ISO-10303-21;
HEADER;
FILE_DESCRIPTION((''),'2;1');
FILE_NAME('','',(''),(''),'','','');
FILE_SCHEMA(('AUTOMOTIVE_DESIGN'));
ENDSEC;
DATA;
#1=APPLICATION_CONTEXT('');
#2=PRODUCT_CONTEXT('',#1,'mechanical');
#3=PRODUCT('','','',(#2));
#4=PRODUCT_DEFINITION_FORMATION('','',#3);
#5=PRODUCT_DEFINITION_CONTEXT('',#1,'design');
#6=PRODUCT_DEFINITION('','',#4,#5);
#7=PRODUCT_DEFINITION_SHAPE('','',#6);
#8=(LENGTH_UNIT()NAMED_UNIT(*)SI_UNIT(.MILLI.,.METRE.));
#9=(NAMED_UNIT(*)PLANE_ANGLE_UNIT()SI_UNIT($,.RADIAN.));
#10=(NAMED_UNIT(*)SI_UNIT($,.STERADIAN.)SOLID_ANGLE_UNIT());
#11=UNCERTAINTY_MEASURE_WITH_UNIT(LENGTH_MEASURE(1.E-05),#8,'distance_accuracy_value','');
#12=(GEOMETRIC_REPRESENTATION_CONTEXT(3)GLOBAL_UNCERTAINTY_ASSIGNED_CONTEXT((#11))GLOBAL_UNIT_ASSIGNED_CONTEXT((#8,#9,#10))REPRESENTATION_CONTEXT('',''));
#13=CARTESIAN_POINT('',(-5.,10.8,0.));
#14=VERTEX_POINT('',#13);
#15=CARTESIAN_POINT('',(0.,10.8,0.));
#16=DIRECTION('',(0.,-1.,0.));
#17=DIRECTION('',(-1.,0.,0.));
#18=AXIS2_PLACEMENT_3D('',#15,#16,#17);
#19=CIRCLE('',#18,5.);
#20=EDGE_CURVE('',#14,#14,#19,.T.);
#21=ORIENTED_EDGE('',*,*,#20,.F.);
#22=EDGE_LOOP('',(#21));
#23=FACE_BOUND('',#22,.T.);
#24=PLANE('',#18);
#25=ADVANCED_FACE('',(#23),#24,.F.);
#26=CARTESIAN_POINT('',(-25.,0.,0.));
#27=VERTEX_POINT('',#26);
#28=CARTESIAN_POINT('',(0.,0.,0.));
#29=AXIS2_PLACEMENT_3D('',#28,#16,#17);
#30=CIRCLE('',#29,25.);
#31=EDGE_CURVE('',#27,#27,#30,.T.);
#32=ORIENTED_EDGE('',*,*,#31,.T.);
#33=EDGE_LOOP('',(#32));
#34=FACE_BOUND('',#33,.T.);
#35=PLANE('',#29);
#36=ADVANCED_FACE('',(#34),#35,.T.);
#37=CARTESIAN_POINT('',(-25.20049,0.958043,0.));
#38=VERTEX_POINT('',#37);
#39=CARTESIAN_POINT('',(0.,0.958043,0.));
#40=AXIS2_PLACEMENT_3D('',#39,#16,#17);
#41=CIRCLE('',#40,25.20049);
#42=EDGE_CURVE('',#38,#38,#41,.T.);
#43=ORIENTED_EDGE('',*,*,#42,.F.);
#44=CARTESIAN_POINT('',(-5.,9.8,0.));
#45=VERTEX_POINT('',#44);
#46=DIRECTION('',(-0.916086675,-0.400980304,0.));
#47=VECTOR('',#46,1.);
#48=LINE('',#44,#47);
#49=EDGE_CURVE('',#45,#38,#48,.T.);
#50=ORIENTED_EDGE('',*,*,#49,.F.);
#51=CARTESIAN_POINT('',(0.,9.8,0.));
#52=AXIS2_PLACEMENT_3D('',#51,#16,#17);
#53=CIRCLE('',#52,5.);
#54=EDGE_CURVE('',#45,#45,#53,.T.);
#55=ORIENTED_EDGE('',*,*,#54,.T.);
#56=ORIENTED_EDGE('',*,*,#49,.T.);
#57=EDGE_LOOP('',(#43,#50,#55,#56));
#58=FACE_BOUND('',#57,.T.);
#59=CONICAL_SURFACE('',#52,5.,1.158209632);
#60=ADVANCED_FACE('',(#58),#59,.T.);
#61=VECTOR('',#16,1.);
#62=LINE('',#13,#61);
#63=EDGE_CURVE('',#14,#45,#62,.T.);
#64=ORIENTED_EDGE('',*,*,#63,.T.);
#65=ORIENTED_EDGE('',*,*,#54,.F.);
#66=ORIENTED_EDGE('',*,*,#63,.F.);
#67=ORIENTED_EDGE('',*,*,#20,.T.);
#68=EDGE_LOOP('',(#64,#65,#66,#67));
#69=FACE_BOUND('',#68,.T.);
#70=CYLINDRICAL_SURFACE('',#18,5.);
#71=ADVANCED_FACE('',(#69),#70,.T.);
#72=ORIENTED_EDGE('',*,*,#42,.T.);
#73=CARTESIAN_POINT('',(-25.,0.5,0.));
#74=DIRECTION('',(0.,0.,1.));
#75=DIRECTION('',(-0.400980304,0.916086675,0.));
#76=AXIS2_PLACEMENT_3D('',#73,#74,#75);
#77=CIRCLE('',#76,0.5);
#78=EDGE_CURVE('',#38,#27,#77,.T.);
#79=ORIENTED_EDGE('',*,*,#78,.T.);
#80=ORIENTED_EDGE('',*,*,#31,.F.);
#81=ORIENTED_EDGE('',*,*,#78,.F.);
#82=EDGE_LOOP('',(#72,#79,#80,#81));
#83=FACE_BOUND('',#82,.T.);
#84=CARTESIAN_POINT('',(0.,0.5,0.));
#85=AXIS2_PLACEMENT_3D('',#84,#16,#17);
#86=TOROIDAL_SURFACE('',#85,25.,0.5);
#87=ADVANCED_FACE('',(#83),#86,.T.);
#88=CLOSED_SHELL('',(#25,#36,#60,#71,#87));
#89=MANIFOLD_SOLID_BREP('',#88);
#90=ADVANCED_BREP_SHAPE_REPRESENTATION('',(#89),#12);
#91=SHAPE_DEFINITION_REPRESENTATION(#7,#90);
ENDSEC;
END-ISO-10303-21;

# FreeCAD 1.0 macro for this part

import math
import FreeCAD as App
import Part
import Sketcher

V = App.Vector

doc = App.newDocument("Part")
body = doc.addObject("PartDesign::Body", "Body")

# Sketch on XY plane
sketch1 = body.newObject("Sketcher::SketchObject", "Sketch")
sketch1.AttachmentSupport = (doc.getObject("XY_Plane"), [""])
sketch1.MapMode = "FlatFace"
sketch1.addGeometry(Part.LineSegment(V(0, 10.8, 0), V(-5, 10.8, 0)), False)
sketch1.addGeometry(Part.LineSegment(V(-5, 10.8, 0), V(-5, 9.8, 0)), False)
sketch1.addGeometry(Part.LineSegment(V(-5, 9.8, 0), V(-25.20049, 0.958043, 0)), False)
sketch1.addGeometry(Part.ArcOfCircle(Part.Circle(V(-25, 0.5, 0), V(0, 0, 1), 0.5), math.radians(113.639476), math.radians(270)), False)
sketch1.addGeometry(Part.LineSegment(V(-25, 0, 0), V(0, 0, 0)), False)
sketch1.addGeometry(Part.LineSegment(V(0, 0, 0), V(0, 10.8, 0)), False)
sketch1.addConstraint(Sketcher.Constraint("Coincident", 0, 2, 1, 1))
sketch1.addConstraint(Sketcher.Constraint("Coincident", 1, 2, 2, 1))
sketch1.addConstraint(Sketcher.Constraint("Tangent", 2, 2, 3, 1))
sketch1.addConstraint(Sketcher.Constraint("Tangent", 3, 2, 4, 1))
sketch1.addConstraint(Sketcher.Constraint("Coincident", 4, 2, 5, 1))
sketch1.addConstraint(Sketcher.Constraint("Coincident", 5, 2, 0, 1))
sketch1.addConstraint(Sketcher.Constraint("Horizontal", 0))
sketch1.addConstraint(Sketcher.Constraint("Vertical", 1))
sketch1.addConstraint(Sketcher.Constraint("Horizontal", 4))
sketch1.addConstraint(Sketcher.Constraint("Vertical", 5))
sketch1.addConstraint(Sketcher.Constraint("Coincident", 4, 2, -1, 1))
sketch1.addConstraint(Sketcher.Constraint("Radius", 3, 0.5))
sketch1.addConstraint(Sketcher.Constraint("DistanceX", 0, 2, 0, 1, 5.0))
sketch1.addConstraint(Sketcher.Constraint("DistanceX", 4, 1, 4, 2, 25.0))
sketch1.addConstraint(Sketcher.Constraint("DistanceY", 1, 2, 1, 1, 1.0))
sketch1.addConstraint(Sketcher.Constraint("DistanceY", 5, 1, 5, 2, 10.8))
revolution = body.newObject("PartDesign::Revolution", "Revolution")
revolution.Profile = sketch1
revolution.ReferenceAxis = (sketch1, ["V_Axis"])
revolution.Angle = 360

doc.recompute()
